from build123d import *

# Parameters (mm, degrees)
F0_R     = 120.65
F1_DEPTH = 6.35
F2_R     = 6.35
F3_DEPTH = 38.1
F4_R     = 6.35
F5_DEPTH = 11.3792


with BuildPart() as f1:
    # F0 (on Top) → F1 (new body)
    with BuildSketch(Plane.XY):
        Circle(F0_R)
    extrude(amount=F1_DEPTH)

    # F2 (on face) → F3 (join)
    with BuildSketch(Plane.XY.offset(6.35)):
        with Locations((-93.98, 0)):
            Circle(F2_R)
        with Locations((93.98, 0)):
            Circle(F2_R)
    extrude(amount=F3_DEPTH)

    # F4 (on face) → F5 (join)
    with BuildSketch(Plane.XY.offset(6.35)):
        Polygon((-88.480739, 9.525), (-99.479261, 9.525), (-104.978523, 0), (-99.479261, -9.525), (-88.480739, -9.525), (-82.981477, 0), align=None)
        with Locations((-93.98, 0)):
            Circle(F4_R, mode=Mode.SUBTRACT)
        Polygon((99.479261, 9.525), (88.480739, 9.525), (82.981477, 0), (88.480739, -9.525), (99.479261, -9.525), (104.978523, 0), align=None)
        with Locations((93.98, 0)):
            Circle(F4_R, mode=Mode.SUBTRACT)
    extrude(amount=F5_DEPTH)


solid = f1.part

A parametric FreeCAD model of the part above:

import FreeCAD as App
import Part
import Sketcher
Q = App.Units.Quantity

doc = App.newDocument("Part")
body = doc.addObject("PartDesign::Body", "Body")

# Sketch on XY plane
sketch1 = body.newObject("Sketcher::SketchObject", "Sketch")
sketch1.AttachmentSupport = (doc.getObject("XY_Plane"), [""])
sketch1.MapMode = "FlatFace"
sketch1.addGeometry(Part.Circle(App.Vector(0, 0, 0), App.Vector(0, 0, 1), 120.65), False)
sketch1.addConstraint([
    Sketcher.Constraint("Coincident", 0, 3, -1, 1),
    Sketcher.Constraint("Diameter", 0, Q("9.5 in")),
])
pad1 = body.newObject("PartDesign::Pad", "Pad")
pad1.Profile = sketch1
pad1.Length = Q("0.25 in")

# Sketch on XY plane
sketch2 = body.newObject("Sketcher::SketchObject", "Sketch001")
sketch2.AttachmentSupport = (doc.getObject("XY_Plane"), [""])
sketch2.MapMode = "FlatFace"
sketch2.AttachmentOffset = App.Placement(App.Vector(0, 0, 0.25 * 25.4), App.Rotation())
sketch2.addGeometry([
    Part.Circle(App.Vector(-93.98, 0, 0), App.Vector(0, 0, 1), 6.35),
    Part.Circle(App.Vector(93.98, 0, 0), App.Vector(0, 0, 1), 6.35),
], False)
sketch2.addConstraint([
    Sketcher.Constraint("Equal", 0, 1),
    Sketcher.Constraint("Symmetric", 0, 3, 1, 3, -1, 1),
    Sketcher.Constraint("PointOnObject", 0, 3, -1),
    Sketcher.Constraint("Diameter", 0, Q("0.5 in")),
    Sketcher.Constraint("DistanceX", 0, 3, -1, 1, Q("3.7 in")),
])
pad2 = body.newObject("PartDesign::Pad", "Pad001")
pad2.Profile = sketch2
pad2.Length = Q("1.5 in")

# Sketch on XY plane
sketch3 = body.newObject("Sketcher::SketchObject", "Sketch002")
sketch3.AttachmentSupport = (doc.getObject("XY_Plane"), [""])
sketch3.MapMode = "FlatFace"
sketch3.AttachmentOffset = App.Placement(App.Vector(0, 0, 0.25 * 25.4), App.Rotation())
sketch3.addGeometry([
    Part.LineSegment(App.Vector(-88.480739, 9.525, 0), App.Vector(-99.479261, 9.525, 0)),  # 0
    Part.LineSegment(App.Vector(-99.479261, 9.525, 0), App.Vector(-104.978523, 0, 0)),  # 1
    Part.LineSegment(App.Vector(-104.978523, 0, 0), App.Vector(-99.479261, -9.525, 0)),  # 2
    Part.LineSegment(App.Vector(-99.479261, -9.525, 0), App.Vector(-88.480739, -9.525, 0)),  # 3
    Part.LineSegment(App.Vector(-88.480739, -9.525, 0), App.Vector(-82.981477, 0, 0)),  # 4
    Part.LineSegment(App.Vector(-82.981477, 0, 0), App.Vector(-88.480739, 9.525, 0)),  # 5
    Part.Circle(App.Vector(-93.98, 0, 0), App.Vector(0, 0, 1), 6.35),  # 6
    Part.LineSegment(App.Vector(99.479261, 9.525, 0), App.Vector(88.480739, 9.525, 0)),  # 7
    Part.LineSegment(App.Vector(88.480739, 9.525, 0), App.Vector(82.981477, 0, 0)),  # 8
    Part.LineSegment(App.Vector(82.981477, 0, 0), App.Vector(88.480739, -9.525, 0)),  # 9
    Part.LineSegment(App.Vector(88.480739, -9.525, 0), App.Vector(99.479261, -9.525, 0)),  # 10
    Part.LineSegment(App.Vector(99.479261, -9.525, 0), App.Vector(104.978523, 0, 0)),  # 11
    Part.LineSegment(App.Vector(104.978523, 0, 0), App.Vector(99.479261, 9.525, 0)),  # 12
    Part.Circle(App.Vector(93.98, 0, 0), App.Vector(0, 0, 1), 6.35),  # 13
], False)
sketch3.addConstraint([
    Sketcher.Constraint("Coincident", 0, 2, 1, 1),
    Sketcher.Constraint("Coincident", 1, 2, 2, 1),
    Sketcher.Constraint("Coincident", 2, 2, 3, 1),
    Sketcher.Constraint("Coincident", 3, 2, 4, 1),
    Sketcher.Constraint("Coincident", 4, 2, 5, 1),
    Sketcher.Constraint("Coincident", 5, 2, 0, 1),
    Sketcher.Constraint("Coincident", 7, 2, 8, 1),
    Sketcher.Constraint("Coincident", 8, 2, 9, 1),
    Sketcher.Constraint("Coincident", 9, 2, 10, 1),
    Sketcher.Constraint("Coincident", 10, 2, 11, 1),
    Sketcher.Constraint("Coincident", 11, 2, 12, 1),
    Sketcher.Constraint("Coincident", 12, 2, 7, 1),
    Sketcher.Constraint("Horizontal", 0),
    Sketcher.Constraint("Horizontal", 3),
    Sketcher.Constraint("Horizontal", 7),
    Sketcher.Constraint("Horizontal", 10),
    Sketcher.Constraint("Equal", 6, 13),
    Sketcher.Constraint("Symmetric", 6, 3, 13, 3, -1, 1),
    Sketcher.Constraint("Symmetric", 3, 2, 7, 2, -1, 1),
    Sketcher.Constraint("Symmetric", 4, 2, 8, 2, -1, 1),
    Sketcher.Constraint("Symmetric", 5, 2, 9, 2, -1, 1),
    Sketcher.Constraint("Symmetric", 1, 2, 11, 2, -1, 1),
    Sketcher.Constraint("Symmetric", 5, 2, 7, 2, -2),
    Sketcher.Constraint("PointOnObject", 6, 3, -1),
    Sketcher.Constraint("PointOnObject", 1, 2, -1),
    Sketcher.Constraint("PointOnObject", 4, 2, -1),
    Sketcher.Constraint("Parallel", 1, 4),
    Sketcher.Constraint("Parallel", 2, 5),
    Sketcher.Constraint("Parallel", 8, 11),
    Sketcher.Constraint("Parallel", 9, 12),
    Sketcher.Constraint("Diameter", 6, Q("0.5 in")),
    Sketcher.Constraint("Angle", 1, Q("-120.000003 deg")),
    Sketcher.Constraint("DistanceX", 6, 3, -1, 1, Q("3.7 in")),
    Sketcher.Constraint("DistanceY", 2, 2, 0, 2, Q("0.75 in")),
    Sketcher.Constraint("DistanceX", 0, 2, 0, 1, 10.998522),
    Sketcher.Constraint("DistanceX", 0, 2, -1, 1, 99.479261),
])
pad3 = body.newObject("PartDesign::Pad", "Pad002")
pad3.Profile = sketch3
pad3.Length = Q("0.448 in")

doc.recompute()
